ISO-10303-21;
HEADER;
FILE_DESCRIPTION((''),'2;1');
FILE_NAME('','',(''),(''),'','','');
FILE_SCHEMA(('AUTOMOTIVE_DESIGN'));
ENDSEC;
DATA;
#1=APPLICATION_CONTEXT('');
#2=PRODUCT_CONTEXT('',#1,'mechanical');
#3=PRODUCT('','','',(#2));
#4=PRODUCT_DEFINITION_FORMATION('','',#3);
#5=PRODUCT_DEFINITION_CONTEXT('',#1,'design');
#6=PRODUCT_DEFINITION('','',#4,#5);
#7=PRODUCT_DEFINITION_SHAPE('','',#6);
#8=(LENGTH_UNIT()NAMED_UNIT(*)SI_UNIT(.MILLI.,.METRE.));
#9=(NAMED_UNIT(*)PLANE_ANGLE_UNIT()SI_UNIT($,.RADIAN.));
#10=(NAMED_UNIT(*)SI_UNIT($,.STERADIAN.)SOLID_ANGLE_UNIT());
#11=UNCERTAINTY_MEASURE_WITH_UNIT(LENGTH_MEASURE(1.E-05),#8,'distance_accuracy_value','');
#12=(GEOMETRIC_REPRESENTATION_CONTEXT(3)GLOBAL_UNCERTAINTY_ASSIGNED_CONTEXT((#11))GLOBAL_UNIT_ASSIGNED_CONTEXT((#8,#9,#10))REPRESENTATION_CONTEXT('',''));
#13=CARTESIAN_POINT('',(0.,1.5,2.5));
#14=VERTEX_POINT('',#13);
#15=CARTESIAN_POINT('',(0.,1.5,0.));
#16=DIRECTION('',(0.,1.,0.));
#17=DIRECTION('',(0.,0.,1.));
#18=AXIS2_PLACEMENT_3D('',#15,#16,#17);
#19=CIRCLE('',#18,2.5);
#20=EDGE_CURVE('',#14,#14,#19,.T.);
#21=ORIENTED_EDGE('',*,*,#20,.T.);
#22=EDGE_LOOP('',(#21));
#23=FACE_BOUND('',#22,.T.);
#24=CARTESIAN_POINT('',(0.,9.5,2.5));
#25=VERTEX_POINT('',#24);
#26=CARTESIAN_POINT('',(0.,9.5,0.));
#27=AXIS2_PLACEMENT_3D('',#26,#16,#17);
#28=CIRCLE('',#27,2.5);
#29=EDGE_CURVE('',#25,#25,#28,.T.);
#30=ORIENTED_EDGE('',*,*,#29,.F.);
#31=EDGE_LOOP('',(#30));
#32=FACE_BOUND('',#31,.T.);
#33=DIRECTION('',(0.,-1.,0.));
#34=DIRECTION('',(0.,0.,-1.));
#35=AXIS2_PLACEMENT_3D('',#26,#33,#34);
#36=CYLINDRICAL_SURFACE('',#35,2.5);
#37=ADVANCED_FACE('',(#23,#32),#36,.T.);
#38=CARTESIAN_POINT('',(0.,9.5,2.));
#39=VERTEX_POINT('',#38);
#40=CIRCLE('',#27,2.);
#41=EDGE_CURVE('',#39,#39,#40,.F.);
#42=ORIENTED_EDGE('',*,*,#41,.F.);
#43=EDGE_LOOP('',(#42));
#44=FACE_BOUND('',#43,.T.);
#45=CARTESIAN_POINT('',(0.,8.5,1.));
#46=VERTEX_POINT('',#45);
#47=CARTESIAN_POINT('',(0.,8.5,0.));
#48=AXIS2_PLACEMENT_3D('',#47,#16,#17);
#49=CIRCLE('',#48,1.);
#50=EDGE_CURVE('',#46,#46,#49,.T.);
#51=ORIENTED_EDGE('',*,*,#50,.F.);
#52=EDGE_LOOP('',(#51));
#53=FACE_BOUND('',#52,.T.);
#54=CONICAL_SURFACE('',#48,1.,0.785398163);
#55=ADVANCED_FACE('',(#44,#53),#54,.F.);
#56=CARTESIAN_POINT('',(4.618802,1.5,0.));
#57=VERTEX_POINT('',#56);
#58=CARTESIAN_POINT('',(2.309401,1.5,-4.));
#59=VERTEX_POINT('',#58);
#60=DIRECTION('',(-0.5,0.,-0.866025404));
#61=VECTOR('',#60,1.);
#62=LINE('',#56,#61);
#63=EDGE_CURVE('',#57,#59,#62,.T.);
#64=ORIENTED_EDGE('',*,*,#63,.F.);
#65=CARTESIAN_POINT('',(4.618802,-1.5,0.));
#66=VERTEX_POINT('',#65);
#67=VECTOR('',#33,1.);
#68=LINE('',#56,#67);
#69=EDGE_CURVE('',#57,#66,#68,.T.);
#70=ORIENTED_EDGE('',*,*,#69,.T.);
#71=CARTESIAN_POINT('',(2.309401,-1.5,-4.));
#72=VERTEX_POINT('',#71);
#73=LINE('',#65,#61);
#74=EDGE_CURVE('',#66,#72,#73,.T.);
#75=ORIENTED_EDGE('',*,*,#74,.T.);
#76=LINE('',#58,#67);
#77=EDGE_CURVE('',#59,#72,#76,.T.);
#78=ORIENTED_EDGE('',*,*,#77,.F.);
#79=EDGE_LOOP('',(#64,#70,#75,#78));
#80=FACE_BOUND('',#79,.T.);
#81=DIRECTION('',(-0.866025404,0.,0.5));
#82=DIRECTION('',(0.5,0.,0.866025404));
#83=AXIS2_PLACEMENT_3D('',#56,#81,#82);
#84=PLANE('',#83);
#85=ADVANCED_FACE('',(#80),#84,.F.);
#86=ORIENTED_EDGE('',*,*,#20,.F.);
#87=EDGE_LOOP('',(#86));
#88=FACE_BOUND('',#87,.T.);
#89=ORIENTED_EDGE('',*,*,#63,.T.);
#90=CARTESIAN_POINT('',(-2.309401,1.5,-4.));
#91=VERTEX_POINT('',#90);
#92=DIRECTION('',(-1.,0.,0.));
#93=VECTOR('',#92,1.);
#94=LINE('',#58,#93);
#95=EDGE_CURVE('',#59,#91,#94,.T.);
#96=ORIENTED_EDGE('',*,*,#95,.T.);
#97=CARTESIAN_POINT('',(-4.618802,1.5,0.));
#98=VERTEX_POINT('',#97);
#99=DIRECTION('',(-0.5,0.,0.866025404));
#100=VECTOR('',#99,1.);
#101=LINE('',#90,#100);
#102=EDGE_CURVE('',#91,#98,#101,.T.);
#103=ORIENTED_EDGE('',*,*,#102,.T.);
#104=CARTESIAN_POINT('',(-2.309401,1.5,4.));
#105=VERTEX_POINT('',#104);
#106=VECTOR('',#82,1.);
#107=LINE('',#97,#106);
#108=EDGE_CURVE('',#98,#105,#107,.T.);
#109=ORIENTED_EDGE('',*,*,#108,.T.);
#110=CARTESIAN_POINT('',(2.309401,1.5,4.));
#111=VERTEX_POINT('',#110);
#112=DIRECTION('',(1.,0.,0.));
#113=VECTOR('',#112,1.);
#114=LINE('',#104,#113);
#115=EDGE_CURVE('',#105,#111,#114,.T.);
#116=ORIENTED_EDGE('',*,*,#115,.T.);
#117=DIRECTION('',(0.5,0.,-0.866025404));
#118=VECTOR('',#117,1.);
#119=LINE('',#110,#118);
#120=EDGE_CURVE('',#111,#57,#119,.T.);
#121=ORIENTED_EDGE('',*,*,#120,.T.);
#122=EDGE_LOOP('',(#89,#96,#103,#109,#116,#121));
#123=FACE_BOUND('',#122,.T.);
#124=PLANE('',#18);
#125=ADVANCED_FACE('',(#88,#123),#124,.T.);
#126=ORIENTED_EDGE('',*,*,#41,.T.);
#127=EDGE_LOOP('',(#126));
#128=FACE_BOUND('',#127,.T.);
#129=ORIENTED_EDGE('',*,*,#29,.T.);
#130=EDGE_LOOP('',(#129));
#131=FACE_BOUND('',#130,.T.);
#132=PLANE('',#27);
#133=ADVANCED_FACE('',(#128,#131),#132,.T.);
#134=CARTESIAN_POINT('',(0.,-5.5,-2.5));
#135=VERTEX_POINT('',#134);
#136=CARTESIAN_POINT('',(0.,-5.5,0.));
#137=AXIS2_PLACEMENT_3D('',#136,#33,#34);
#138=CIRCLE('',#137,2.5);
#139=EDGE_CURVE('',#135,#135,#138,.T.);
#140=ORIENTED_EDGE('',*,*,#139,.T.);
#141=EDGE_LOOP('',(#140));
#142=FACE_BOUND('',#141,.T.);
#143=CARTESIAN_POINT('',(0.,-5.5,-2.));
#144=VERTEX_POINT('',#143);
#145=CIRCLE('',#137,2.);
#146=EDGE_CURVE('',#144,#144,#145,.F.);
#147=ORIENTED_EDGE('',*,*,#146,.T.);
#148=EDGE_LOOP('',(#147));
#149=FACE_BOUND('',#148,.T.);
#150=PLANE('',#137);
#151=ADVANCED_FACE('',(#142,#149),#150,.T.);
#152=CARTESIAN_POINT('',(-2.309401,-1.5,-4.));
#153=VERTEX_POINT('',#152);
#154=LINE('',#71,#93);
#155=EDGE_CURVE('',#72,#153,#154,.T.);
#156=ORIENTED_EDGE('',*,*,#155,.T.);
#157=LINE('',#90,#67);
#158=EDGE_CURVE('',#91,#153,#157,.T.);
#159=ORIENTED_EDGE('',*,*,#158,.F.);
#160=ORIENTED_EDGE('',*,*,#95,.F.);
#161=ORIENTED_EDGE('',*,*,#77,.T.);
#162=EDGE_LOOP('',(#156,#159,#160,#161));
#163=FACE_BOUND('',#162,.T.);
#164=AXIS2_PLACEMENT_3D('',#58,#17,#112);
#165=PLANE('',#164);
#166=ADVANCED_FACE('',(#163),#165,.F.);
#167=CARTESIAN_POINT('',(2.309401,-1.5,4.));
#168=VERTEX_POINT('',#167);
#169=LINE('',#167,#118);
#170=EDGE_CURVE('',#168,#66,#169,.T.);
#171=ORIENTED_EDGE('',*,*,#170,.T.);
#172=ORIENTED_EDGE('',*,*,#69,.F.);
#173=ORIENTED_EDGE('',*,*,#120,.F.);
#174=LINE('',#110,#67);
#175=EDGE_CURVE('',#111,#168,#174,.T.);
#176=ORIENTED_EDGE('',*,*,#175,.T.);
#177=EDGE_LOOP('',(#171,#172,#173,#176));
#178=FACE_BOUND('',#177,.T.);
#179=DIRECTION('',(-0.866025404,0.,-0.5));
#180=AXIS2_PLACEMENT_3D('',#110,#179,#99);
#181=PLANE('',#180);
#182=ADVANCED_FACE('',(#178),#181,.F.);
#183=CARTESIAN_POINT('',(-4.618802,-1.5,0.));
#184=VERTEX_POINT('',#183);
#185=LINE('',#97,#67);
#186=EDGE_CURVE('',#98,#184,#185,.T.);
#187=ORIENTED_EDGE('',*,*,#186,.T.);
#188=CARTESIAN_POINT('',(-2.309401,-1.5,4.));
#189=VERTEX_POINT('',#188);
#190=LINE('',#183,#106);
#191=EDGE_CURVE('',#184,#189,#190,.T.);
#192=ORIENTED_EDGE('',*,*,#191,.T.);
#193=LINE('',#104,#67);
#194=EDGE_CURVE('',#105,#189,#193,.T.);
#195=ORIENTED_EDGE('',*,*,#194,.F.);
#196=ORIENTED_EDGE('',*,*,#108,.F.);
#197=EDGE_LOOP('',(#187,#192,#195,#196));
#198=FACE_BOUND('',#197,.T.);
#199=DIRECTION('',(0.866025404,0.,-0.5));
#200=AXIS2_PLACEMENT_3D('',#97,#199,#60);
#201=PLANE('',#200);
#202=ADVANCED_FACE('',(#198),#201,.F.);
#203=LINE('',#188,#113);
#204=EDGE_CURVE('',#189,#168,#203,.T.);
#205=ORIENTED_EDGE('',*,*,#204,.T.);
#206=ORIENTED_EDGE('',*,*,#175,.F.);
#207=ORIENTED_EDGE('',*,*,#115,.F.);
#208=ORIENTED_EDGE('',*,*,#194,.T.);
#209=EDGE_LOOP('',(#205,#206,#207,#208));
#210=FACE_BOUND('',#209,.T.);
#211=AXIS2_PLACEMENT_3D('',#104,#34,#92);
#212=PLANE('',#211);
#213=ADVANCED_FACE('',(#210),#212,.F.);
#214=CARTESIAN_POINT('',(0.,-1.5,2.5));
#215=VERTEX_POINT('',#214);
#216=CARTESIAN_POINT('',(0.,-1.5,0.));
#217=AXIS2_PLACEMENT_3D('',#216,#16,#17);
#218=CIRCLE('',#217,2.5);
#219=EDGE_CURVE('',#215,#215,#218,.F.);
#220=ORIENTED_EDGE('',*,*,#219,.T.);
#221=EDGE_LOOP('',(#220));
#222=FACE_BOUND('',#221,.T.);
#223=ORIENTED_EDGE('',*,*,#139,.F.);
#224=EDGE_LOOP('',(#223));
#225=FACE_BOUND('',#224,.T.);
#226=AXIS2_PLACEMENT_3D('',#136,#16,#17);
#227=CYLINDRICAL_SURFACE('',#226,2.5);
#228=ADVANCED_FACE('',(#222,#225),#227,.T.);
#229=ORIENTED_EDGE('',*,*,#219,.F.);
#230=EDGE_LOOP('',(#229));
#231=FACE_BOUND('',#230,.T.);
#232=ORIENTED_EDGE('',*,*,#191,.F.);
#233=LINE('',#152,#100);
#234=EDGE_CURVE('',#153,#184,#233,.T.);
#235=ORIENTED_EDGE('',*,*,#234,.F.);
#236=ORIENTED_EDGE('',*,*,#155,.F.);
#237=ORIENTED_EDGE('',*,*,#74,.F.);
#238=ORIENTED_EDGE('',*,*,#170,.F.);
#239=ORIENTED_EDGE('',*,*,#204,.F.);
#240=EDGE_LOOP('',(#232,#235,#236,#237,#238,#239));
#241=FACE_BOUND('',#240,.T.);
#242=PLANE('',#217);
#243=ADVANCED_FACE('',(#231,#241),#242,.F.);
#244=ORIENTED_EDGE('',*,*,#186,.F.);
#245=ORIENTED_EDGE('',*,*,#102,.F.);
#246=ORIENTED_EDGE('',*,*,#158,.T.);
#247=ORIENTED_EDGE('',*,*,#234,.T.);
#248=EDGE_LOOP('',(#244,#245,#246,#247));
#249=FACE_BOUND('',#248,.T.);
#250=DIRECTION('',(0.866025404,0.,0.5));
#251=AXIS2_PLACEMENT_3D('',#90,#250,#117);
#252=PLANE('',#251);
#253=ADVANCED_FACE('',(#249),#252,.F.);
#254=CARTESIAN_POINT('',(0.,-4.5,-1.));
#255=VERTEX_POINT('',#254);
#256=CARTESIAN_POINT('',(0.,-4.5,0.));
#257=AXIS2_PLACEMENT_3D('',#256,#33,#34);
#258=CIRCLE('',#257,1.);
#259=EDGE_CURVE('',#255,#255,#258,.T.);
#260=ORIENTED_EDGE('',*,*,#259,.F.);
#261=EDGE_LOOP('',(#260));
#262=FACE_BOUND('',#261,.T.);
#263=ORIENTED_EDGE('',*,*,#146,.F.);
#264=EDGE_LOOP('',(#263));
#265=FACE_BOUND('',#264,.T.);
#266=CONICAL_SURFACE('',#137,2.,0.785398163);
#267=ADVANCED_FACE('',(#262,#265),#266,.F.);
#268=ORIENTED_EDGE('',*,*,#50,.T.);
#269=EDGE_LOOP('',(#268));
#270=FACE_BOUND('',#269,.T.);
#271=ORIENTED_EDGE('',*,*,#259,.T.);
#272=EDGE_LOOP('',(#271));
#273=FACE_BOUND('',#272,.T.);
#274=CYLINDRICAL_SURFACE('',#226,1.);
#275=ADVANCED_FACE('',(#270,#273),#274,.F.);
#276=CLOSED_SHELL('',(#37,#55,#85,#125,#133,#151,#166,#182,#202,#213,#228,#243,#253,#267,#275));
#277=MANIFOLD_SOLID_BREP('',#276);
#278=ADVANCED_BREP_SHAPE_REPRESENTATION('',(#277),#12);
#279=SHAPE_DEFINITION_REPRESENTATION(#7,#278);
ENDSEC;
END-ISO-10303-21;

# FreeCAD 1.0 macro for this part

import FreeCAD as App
import Part
import Sketcher

V = App.Vector
Q = App.Units.Quantity


def edges_at(feature, points):
    """Names of the edges that pass closest to the given points."""
    edges = feature.Shape.Edges
    near = lambda p: min(range(len(edges)), key=lambda i: edges[i].distToShape(Part.Vertex(*p))[0])
    return sorted({f"Edge{near(p) + 1}" for p in points})

doc = App.newDocument("Part")
body = doc.addObject("PartDesign::Body", "Body")

# Sketch on XZ plane
sketch1 = body.newObject("Sketcher::SketchObject", "Sketch")
sketch1.AttachmentSupport = (doc.getObject("XZ_Plane"), [""])
sketch1.MapMode = "FlatFace"
sketch1.addGeometry([
    Part.LineSegment(V(2.3, -4, 0), V(-2.3, -4, 0)),  # 0
    Part.LineSegment(V(-2.3, -4, 0), V(-4.6, 0, 0)),  # 1
    Part.LineSegment(V(-4.6, 0, 0), V(-2.3, 4, 0)),  # 2
    Part.LineSegment(V(-2.3, 4, 0), V(2.3, 4, 0)),  # 3
    Part.LineSegment(V(2.3, 4, 0), V(4.6, 0, 0)),  # 4
    Part.LineSegment(V(4.6, 0, 0), V(2.3, -4, 0)),  # 5
], False)
sketch1.addConstraint([
    Sketcher.Constraint("Coincident", 0, 2, 1, 1),
    Sketcher.Constraint("Coincident", 1, 2, 2, 1),
    Sketcher.Constraint("Coincident", 2, 2, 3, 1),
    Sketcher.Constraint("Coincident", 3, 2, 4, 1),
    Sketcher.Constraint("Coincident", 4, 2, 5, 1),
    Sketcher.Constraint("Coincident", 5, 2, 0, 1),
    Sketcher.Constraint("Horizontal", 0),
    Sketcher.Constraint("Horizontal", 3),
    Sketcher.Constraint("Symmetric", 0, 2, 3, 2, -1, 1),
    Sketcher.Constraint("Symmetric", 1, 2, 4, 2, -1, 1),
    Sketcher.Constraint("PointOnObject", 1, 2, -1),
    Sketcher.Constraint("Parallel", 2, 5),
    Sketcher.Constraint("Vertical", 0, 2, 2, 2),
    Sketcher.Constraint("Angle", 1, Q("120 deg")),
    Sketcher.Constraint("DistanceY", 0, 2, -1, 1, 4.0),
    Sketcher.Constraint("DistanceX", 0, 2, -1, 1, 2.309401),
])
pad1 = body.newObject("PartDesign::Pad", "Pad")
pad1.Profile = sketch1
pad1.Length = 3
pad1.Midplane = True

# Sketch on XZ plane
sketch2 = body.newObject("Sketcher::SketchObject", "Sketch001")
sketch2.AttachmentSupport = (doc.getObject("XZ_Plane"), [""])
sketch2.MapMode = "FlatFace"
sketch2.AttachmentOffset = App.Placement(V(0, 0, 1.5), App.Rotation())
sketch2.addGeometry(Part.Circle(V(0, 0, 0), V(0, 0, 1), 2.5), False)
sketch2.addConstraint([
    Sketcher.Constraint("Coincident", 0, 3, -1, 1),
    Sketcher.Constraint("Diameter", 0, 5.0),
])
pad2 = body.newObject("PartDesign::Pad", "Pad001")
pad2.Profile = sketch2
pad2.Length = 4

# Sketch on XZ plane
sketch3 = body.newObject("Sketcher::SketchObject", "Sketch002")
sketch3.AttachmentSupport = (doc.getObject("XZ_Plane"), [""])
sketch3.MapMode = "FlatFace"
sketch3.AttachmentOffset = App.Placement(V(0, 0, -1.5), App.Rotation())
sketch3.addGeometry(Part.Circle(V(0, 0, 0), V(0, 0, 1), 2.5), False)
sketch3.addConstraint([
    Sketcher.Constraint("Coincident", 0, 3, -1, 1),
    Sketcher.Constraint("Diameter", 0, 5.0),
])
pad3 = body.newObject("PartDesign::Pad", "Pad002")
pad3.Profile = sketch3
pad3.Length = 8
pad3.Reversed = True

# Sketch on XZ plane
sketch4 = body.newObject("Sketcher::SketchObject", "Sketch003")
sketch4.AttachmentSupport = (doc.getObject("XZ_Plane"), [""])
sketch4.MapMode = "FlatFace"
sketch4.AttachmentOffset = App.Placement(V(0, 0, -9.5), App.Rotation())
sketch4.addGeometry(Part.Circle(V(0, 0, 0), V(0, 0, 1), 1), False)
sketch4.addConstraint([
    Sketcher.Constraint("Coincident", 0, 3, -1, 1),
    Sketcher.Constraint("Diameter", 0, 2.0),
])
pocket1 = body.newObject("PartDesign::Pocket", "Pocket")
pocket1.Profile = sketch4
pocket1.Type = "ThroughAll"
pocket1.Reversed = True
doc.recompute()

chamfer = body.newObject("PartDesign::Chamfer", "Chamfer")
chamfer.Base = (pocket1, edges_at(pocket1, [(-1, -5.5, 0), (-1, 9.5, 0)]))
chamfer.Size = 1

doc.recompute()
